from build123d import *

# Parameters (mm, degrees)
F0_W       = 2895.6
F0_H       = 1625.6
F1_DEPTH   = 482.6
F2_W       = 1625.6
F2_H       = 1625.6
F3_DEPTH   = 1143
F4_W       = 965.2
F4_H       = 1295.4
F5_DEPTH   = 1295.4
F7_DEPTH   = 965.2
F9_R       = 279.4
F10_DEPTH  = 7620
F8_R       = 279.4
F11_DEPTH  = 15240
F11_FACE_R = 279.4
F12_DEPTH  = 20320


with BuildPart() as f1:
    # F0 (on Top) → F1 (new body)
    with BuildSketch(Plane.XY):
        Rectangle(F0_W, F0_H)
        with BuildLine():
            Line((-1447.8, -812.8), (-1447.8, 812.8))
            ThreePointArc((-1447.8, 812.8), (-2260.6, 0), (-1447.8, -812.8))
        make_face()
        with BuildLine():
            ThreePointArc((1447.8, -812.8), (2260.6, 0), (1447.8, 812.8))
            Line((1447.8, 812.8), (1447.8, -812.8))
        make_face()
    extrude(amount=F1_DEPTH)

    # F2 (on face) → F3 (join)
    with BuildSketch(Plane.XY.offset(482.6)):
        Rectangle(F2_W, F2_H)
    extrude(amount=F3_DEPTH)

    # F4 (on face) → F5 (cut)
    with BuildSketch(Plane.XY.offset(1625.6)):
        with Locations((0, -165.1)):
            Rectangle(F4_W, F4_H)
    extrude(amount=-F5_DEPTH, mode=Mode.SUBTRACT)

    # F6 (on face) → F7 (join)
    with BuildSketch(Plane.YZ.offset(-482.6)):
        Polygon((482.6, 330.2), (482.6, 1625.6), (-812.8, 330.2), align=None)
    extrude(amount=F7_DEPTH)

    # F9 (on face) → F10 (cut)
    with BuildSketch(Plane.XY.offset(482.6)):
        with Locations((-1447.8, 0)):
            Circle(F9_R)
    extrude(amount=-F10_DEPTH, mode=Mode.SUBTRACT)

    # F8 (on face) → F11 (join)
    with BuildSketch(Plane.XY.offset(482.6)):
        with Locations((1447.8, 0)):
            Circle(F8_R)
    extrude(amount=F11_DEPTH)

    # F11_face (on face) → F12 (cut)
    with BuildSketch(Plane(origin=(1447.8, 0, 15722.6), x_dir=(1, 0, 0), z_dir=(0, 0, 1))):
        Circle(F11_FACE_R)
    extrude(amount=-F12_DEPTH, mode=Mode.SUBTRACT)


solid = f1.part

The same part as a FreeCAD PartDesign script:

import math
import FreeCAD as App
import Part
import Sketcher

V = App.Vector
Q = App.Units.Quantity


def add_polygon(sketch, points):
    """Adds a closed chain of lines whose ends are joined by coincident constraints."""
    first, n = sketch.GeometryCount, len(points)
    for a, b in zip(points, points[1:] + points[:1]):
        sketch.addGeometry(Part.LineSegment(App.Vector(*a, 0), App.Vector(*b, 0)), False)
    for i in range(n):
        sketch.addConstraint(Sketcher.Constraint("Coincident", first + i, 2, first + (i + 1) % n, 1))

doc = App.newDocument("Part")
body = doc.addObject("PartDesign::Body", "Body")

sketch1 = doc.addObject("Sketcher::SketchObject", "Sketch")
body.addObject(sketch1)
sketch1.AttachmentSupport = (doc.XY_Plane, [""])
sketch1.MapMode = "FlatFace"
sketch1.addGeometry([
    Part.LineSegment(V(-1447.8, -812.8, 0), V(1447.8, -812.8, 0)),
    Part.ArcOfCircle(Part.Circle(V(1447.8, 0, 0), V(0, 0, 1), 812.8), math.radians(-90), math.radians(90)),
    Part.LineSegment(V(1447.8, 812.8, 0), V(-1447.8, 812.8, 0)),
    Part.ArcOfCircle(Part.Circle(V(-1447.8, 0, 0), V(0, 0, 1), 812.8), math.radians(90), math.radians(270)),
], False)
sketch1.addConstraint([
    Sketcher.Constraint("Coincident", 0, 2, 1, 1),
    Sketcher.Constraint("Coincident", 1, 2, 2, 1),
    Sketcher.Constraint("Coincident", 2, 2, 3, 1),
    Sketcher.Constraint("Coincident", 3, 2, 0, 1),
    Sketcher.Constraint("Horizontal", 0),
    Sketcher.Constraint("Horizontal", 2),
    Sketcher.Constraint("Symmetric", 1, 3, 3, 3, -1, 1),
    Sketcher.Constraint("Vertical", 1, 3, 0, 2),
    Sketcher.Constraint("Vertical", 3, 3, 2, 2),
    Sketcher.Constraint("Equal", 0, 2),
    Sketcher.Constraint("Radius", 1, Q("32 in")),
    Sketcher.Constraint("DistanceX", 0, 1, 0, 2, Q("114 in")),
    Sketcher.Constraint("DistanceX", -1, 1, 1, 3, Q("57 in")),
])
pad1 = doc.addObject("PartDesign::Pad", "Pad")
body.addObject(pad1)
pad1.Profile = sketch1
pad1.Length = Q("19 in")

sketch2 = doc.addObject("Sketcher::SketchObject", "Sketch001")
body.addObject(sketch2)
sketch2.AttachmentSupport = (doc.XY_Plane, [""])
sketch2.MapMode = "FlatFace"
sketch2.AttachmentOffset = App.Placement(V(0, 0, 19 * 25.4), App.Rotation())
add_polygon(sketch2, [(-812.8, 812.8), (-812.8, -812.8), (812.8, -812.8), (812.8, 812.8)])
sketch2.addConstraint([
    Sketcher.Constraint("Vertical", 0),
    Sketcher.Constraint("Horizontal", 1),
    Sketcher.Constraint("Vertical", 2),
    Sketcher.Constraint("Horizontal", 3),
    Sketcher.Constraint("Symmetric", 0, 2, 2, 2, -1, 1),
    Sketcher.Constraint("Equal", 3, 0),
    Sketcher.Constraint("DistanceX", 1, 1, 1, 2, Q("64 in")),
])
pad2 = doc.addObject("PartDesign::Pad", "Pad001")
body.addObject(pad2)
pad2.Profile = sketch2
pad2.Length = Q("45 in")

sketch3 = doc.addObject("Sketcher::SketchObject", "Sketch002")
body.addObject(sketch3)
sketch3.AttachmentSupport = (doc.XY_Plane, [""])
sketch3.MapMode = "FlatFace"
sketch3.AttachmentOffset = App.Placement(V(0, 0, 64 * 25.4), App.Rotation())
add_polygon(sketch3, [(-482.6, 482.6), (-482.6, -812.8), (482.6, -812.8), (482.6, 482.6)])
sketch3.addConstraint([
    Sketcher.Constraint("Vertical", 0),
    Sketcher.Constraint("Horizontal", 1),
    Sketcher.Constraint("Vertical", 2),
    Sketcher.Constraint("Horizontal", 3),
    Sketcher.Constraint("DistanceX", 1, 1, 1, 2, Q("38 in")),
    Sketcher.Constraint("DistanceY", 0, 2, 0, 1, Q("51 in")),
    Sketcher.Constraint("DistanceX", 0, 2, -1, 1, Q("19 in")),
    Sketcher.Constraint("DistanceY", 0, 2, -1, 1, Q("32 in")),
])
pocket1 = doc.addObject("PartDesign::Pocket", "Pocket")
body.addObject(pocket1)
pocket1.Profile = sketch3
pocket1.Length = Q("51 in")

sketch4 = doc.addObject("Sketcher::SketchObject", "Sketch003")
body.addObject(sketch4)
sketch4.AttachmentSupport = (doc.YZ_Plane, [""])
sketch4.MapMode = "FlatFace"
sketch4.AttachmentOffset = App.Placement(V(0, 0, -19 * 25.4), App.Rotation())
add_polygon(sketch4, [(482.6, 330.2), (482.6, 1625.6), (-812.8, 330.2)])
sketch4.addConstraint([
    Sketcher.Constraint("Vertical", 0),
    Sketcher.Constraint("Horizontal", 2),
    Sketcher.Constraint("Equal", 2, 0),
    Sketcher.Constraint("DistanceX", 2, 1, 2, 2, Q("51 in")),
    Sketcher.Constraint("DistanceX", -1, 1, 0, 2, Q("19 in")),
    Sketcher.Constraint("DistanceY", -1, 1, 0, 2, Q("64 in")),
])
pad3 = doc.addObject("PartDesign::Pad", "Pad002")
body.addObject(pad3)
pad3.Profile = sketch4
pad3.Length = Q("38 in")

sketch5 = doc.addObject("Sketcher::SketchObject", "Sketch004")
body.addObject(sketch5)
sketch5.AttachmentSupport = (doc.XY_Plane, [""])
sketch5.MapMode = "FlatFace"
sketch5.AttachmentOffset = App.Placement(V(0, 0, 19 * 25.4), App.Rotation())
sketch5.addGeometry(Part.Circle(V(-1447.8, 0, 0), V(0, 0, 1), 279.4), False)
sketch5.addConstraint([
    Sketcher.Constraint("PointOnObject", 0, 3, -1),
    Sketcher.Constraint("Diameter", 0, Q("22 in")),
    Sketcher.Constraint("DistanceX", 0, 3, -1, 1, Q("57 in")),
])
pocket2 = doc.addObject("PartDesign::Pocket", "Pocket001")
body.addObject(pocket2)
pocket2.Profile = sketch5
pocket2.Length = Q("300 in")

sketch6 = doc.addObject("Sketcher::SketchObject", "Sketch005")
body.addObject(sketch6)
sketch6.AttachmentSupport = (doc.XY_Plane, [""])
sketch6.MapMode = "FlatFace"
sketch6.AttachmentOffset = App.Placement(V(0, 0, 19 * 25.4), App.Rotation())
sketch6.addGeometry(Part.Circle(V(1447.8, 0, 0), V(0, 0, 1), 279.4), False)
sketch6.addConstraint([
    Sketcher.Constraint("PointOnObject", 0, 3, -1),
    Sketcher.Constraint("Diameter", 0, Q("22 in")),
    Sketcher.Constraint("DistanceX", -1, 1, 0, 3, Q("57 in")),
])
pad4 = doc.addObject("PartDesign::Pad", "Pad003")
body.addObject(pad4)
pad4.Profile = sketch6
pad4.Length = Q("600 in")

sketch7 = doc.addObject("Sketcher::SketchObject", "Sketch006")
body.addObject(sketch7)
sketch7.AttachmentSupport = (doc.XY_Plane, [""])
sketch7.MapMode = "FlatFace"
sketch7.AttachmentOffset = App.Placement(V(0, 0, 619 * 25.4), App.Rotation())
sketch7.addGeometry(Part.Circle(V(1447.8, 0, 0), V(0, 0, 1), 279.4), False)
sketch7.addConstraint([
    Sketcher.Constraint("PointOnObject", 0, 3, -1),
    Sketcher.Constraint("Diameter", 0, Q("22 in")),
    Sketcher.Constraint("DistanceX", -1, 1, 0, 3, Q("57 in")),
])
pocket3 = doc.addObject("PartDesign::Pocket", "Pocket002")
body.addObject(pocket3)
pocket3.Profile = sketch7
pocket3.Length = Q("800 in")

doc.recompute()
